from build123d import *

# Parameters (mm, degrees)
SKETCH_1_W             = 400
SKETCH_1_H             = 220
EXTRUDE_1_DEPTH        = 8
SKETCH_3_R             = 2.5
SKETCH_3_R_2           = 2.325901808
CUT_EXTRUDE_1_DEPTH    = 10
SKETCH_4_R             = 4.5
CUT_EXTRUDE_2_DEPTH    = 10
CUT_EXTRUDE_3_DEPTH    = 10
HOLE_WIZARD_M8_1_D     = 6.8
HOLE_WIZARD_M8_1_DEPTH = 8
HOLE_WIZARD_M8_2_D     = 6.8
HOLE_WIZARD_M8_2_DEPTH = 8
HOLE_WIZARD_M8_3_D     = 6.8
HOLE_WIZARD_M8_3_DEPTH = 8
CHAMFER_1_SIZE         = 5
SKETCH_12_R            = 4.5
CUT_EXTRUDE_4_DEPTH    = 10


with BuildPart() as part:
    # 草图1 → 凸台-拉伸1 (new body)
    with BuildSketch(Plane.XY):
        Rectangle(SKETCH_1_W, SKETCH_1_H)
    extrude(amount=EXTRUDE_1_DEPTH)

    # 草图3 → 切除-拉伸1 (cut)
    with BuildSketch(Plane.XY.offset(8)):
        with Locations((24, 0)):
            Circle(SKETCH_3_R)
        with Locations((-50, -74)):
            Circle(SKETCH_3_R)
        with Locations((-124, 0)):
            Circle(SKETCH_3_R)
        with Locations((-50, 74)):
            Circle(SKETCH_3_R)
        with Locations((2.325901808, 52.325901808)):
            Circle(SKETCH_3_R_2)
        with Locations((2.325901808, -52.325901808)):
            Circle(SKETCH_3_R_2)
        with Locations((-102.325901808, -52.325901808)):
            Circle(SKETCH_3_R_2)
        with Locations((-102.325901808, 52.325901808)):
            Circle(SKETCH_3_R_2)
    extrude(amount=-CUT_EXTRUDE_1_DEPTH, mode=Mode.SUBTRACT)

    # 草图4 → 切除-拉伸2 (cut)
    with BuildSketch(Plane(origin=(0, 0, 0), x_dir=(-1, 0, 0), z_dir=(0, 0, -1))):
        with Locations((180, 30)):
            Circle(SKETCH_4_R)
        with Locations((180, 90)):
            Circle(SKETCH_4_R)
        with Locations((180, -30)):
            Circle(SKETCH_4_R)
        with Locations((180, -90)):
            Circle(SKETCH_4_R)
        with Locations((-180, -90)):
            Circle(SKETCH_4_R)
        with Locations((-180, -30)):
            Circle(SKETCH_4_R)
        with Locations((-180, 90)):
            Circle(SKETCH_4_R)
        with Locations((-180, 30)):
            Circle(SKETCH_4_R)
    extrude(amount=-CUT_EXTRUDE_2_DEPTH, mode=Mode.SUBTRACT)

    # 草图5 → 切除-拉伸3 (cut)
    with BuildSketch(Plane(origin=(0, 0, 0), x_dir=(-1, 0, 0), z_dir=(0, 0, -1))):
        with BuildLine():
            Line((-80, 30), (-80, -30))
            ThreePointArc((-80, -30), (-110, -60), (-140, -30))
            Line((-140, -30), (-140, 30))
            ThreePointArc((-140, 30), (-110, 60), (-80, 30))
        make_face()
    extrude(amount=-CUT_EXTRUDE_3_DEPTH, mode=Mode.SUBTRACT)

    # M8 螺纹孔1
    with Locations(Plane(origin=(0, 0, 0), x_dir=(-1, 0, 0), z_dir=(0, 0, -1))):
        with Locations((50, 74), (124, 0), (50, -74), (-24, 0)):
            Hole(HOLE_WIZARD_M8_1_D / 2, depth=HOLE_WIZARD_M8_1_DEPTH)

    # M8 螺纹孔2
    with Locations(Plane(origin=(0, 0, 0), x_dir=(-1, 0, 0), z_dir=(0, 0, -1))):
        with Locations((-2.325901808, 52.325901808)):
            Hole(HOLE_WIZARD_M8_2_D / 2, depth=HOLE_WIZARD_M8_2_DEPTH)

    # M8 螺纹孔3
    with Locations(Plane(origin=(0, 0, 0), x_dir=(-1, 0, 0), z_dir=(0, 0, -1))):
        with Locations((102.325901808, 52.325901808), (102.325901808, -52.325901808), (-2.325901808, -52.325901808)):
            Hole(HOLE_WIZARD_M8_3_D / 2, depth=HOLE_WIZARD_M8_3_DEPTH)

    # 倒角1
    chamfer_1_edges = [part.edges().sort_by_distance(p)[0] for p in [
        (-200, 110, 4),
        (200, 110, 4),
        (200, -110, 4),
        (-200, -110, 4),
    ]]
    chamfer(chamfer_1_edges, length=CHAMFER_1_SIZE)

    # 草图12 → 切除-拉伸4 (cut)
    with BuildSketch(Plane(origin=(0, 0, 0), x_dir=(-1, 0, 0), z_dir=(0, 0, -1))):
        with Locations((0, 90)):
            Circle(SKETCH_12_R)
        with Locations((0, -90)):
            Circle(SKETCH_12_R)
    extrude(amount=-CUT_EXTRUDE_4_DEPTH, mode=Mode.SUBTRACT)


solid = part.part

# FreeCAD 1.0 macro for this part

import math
import FreeCAD as App
import Part
import Sketcher
Q = App.Units.Quantity


def edges_at(feature, points):
    """Names of the edges that pass closest to the given points."""
    edges = feature.Shape.Edges
    near = lambda p: min(range(len(edges)), key=lambda i: edges[i].distToShape(Part.Vertex(*p))[0])
    return sorted({f"Edge{near(p) + 1}" for p in points})

doc = App.newDocument("Part")
body = doc.addObject("PartDesign::Body", "Body")

# Sketch on XY plane
sketch1 = body.newObject("Sketcher::SketchObject", "Sketch")
sketch1.AttachmentSupport = (doc.getObject("XY_Plane"), [""])
sketch1.MapMode = "FlatFace"
sketch1.addGeometry([
    Part.LineSegment(App.Vector(-200, 110, 0), App.Vector(-200, -110, 0)),
    Part.LineSegment(App.Vector(-200, -110, 0), App.Vector(200, -110, 0)),
    Part.LineSegment(App.Vector(200, -110, 0), App.Vector(200, 110, 0)),
    Part.LineSegment(App.Vector(200, 110, 0), App.Vector(-200, 110, 0)),
], False)
sketch1.addConstraint([
    Sketcher.Constraint("Coincident", 0, 2, 1, 1),
    Sketcher.Constraint("Coincident", 1, 2, 2, 1),
    Sketcher.Constraint("Coincident", 2, 2, 3, 1),
    Sketcher.Constraint("Coincident", 3, 2, 0, 1),
    Sketcher.Constraint("Vertical", 0),
    Sketcher.Constraint("Horizontal", 1),
    Sketcher.Constraint("Vertical", 2),
    Sketcher.Constraint("Horizontal", 3),
    Sketcher.Constraint("Symmetric", 0, 2, 2, 2, -1, 1),
    Sketcher.Constraint("DistanceX", 1, 1, 1, 2, Q("400 mm")),
    Sketcher.Constraint("DistanceY", 0, 2, 0, 1, Q("220 mm")),
])
pad1 = body.newObject("PartDesign::Pad", "Pad")
pad1.Profile = sketch1
pad1.Length = 8

# Sketch on XY plane
sketch2 = body.newObject("Sketcher::SketchObject", "Sketch001")
sketch2.AttachmentSupport = (doc.getObject("XY_Plane"), [""])
sketch2.MapMode = "FlatFace"
sketch2.AttachmentOffset = App.Placement(App.Vector(0, 0, 8), App.Rotation())
sketch2.addGeometry([
    Part.Circle(App.Vector(24, 0, 0), App.Vector(0, 0, 1), 2.5),  # 0
    Part.Circle(App.Vector(-50, -74, 0), App.Vector(0, 0, 1), 2.5),  # 1
    Part.Circle(App.Vector(-124, 0, 0), App.Vector(0, 0, 1), 2.5),  # 2
    Part.Circle(App.Vector(-50, 74, 0), App.Vector(0, 0, 1), 2.5),  # 3
    Part.Circle(App.Vector(2.325902, 52.325902, 0), App.Vector(0, 0, 1), 2.325902),  # 4
    Part.Circle(App.Vector(2.325902, -52.325902, 0), App.Vector(0, 0, 1), 2.325902),  # 5
    Part.Circle(App.Vector(-102.325902, -52.325902, 0), App.Vector(0, 0, 1), 2.325902),  # 6
    Part.Circle(App.Vector(-102.325902, 52.325902, 0), App.Vector(0, 0, 1), 2.325902),  # 7
], False)
sketch2.addConstraint([
    Sketcher.Constraint("Equal", 0, 1),
    Sketcher.Constraint("Equal", 1, 2),
    Sketcher.Constraint("Equal", 2, 3),
    Sketcher.Constraint("Equal", 4, 5),
    Sketcher.Constraint("Equal", 5, 6),
    Sketcher.Constraint("Equal", 6, 7),
    Sketcher.Constraint("Symmetric", 1, 3, 3, 3, -1),
    Sketcher.Constraint("Symmetric", 4, 3, 5, 3, -1),
    Sketcher.Constraint("Symmetric", 6, 3, 7, 3, -1),
    Sketcher.Constraint("PointOnObject", 0, 3, -1),
    Sketcher.Constraint("PointOnObject", 2, 3, -1),
    Sketcher.Constraint("Horizontal", 5, 3, 6, 3),
    Sketcher.Constraint("Diameter", 0, Q("5 mm")),
    Sketcher.Constraint("DistanceX", -1, 1, 0, 3, Q("24 mm")),
    Sketcher.Constraint("DistanceX", 1, 3, -1, 1, Q("50 mm")),
    Sketcher.Constraint("DistanceY", 1, 3, -1, 1, Q("74 mm")),
    Sketcher.Constraint("DistanceX", 2, 3, -1, 1, Q("124 mm")),
    Sketcher.Constraint("Diameter", 4, Q("4.651804 mm")),
    Sketcher.Constraint("DistanceX", -1, 1, 4, 3, Q("2.325902 mm")),
    Sketcher.Constraint("DistanceY", -1, 1, 4, 3, Q("52.325902 mm")),
    Sketcher.Constraint("DistanceX", 6, 3, -1, 1, Q("102.325902 mm")),
])
pocket1 = body.newObject("PartDesign::Pocket", "Pocket")
pocket1.Profile = sketch2
pocket1.Length = 10

# Sketch on XY plane
sketch3 = body.newObject("Sketcher::SketchObject", "Sketch002")
sketch3.AttachmentSupport = (doc.getObject("XY_Plane"), [""])
sketch3.MapMode = "FlatFace"
sketch3.addGeometry([
    Part.Circle(App.Vector(-180, 30, 0), App.Vector(0, 0, 1), 4.5),  # 0
    Part.Circle(App.Vector(-180, 90, 0), App.Vector(0, 0, 1), 4.5),  # 1
    Part.Circle(App.Vector(-180, -30, 0), App.Vector(0, 0, 1), 4.5),  # 2
    Part.Circle(App.Vector(-180, -90, 0), App.Vector(0, 0, 1), 4.5),  # 3
    Part.Circle(App.Vector(180, -90, 0), App.Vector(0, 0, 1), 4.5),  # 4
    Part.Circle(App.Vector(180, -30, 0), App.Vector(0, 0, 1), 4.5),  # 5
    Part.Circle(App.Vector(180, 90, 0), App.Vector(0, 0, 1), 4.5),  # 6
    Part.Circle(App.Vector(180, 30, 0), App.Vector(0, 0, 1), 4.5),  # 7
], False)
sketch3.addConstraint([
    Sketcher.Constraint("Equal", 0, 1),
    Sketcher.Constraint("Equal", 1, 2),
    Sketcher.Constraint("Equal", 2, 3),
    Sketcher.Constraint("Equal", 3, 4),
    Sketcher.Constraint("Equal", 4, 5),
    Sketcher.Constraint("Equal", 5, 6),
    Sketcher.Constraint("Equal", 6, 7),
    Sketcher.Constraint("Symmetric", 1, 3, 4, 3, -1, 1),
    Sketcher.Constraint("Symmetric", 0, 3, 5, 3, -1, 1),
    Sketcher.Constraint("Symmetric", 3, 3, 6, 3, -1, 1),
    Sketcher.Constraint("Symmetric", 2, 3, 7, 3, -1, 1),
    Sketcher.Constraint("Symmetric", 3, 3, 4, 3, -2),
    Sketcher.Constraint("Symmetric", 2, 3, 5, 3, -2),
    Sketcher.Constraint("Vertical", 0, 3, 1, 3),
    Sketcher.Constraint("Diameter", 0, Q("9 mm")),
    Sketcher.Constraint("DistanceX", 0, 3, -1, 1, Q("180 mm")),
    Sketcher.Constraint("DistanceY", -1, 1, 0, 3, Q("30 mm")),
    Sketcher.Constraint("DistanceY", -1, 1, 1, 3, Q("90 mm")),
])
pocket2 = body.newObject("PartDesign::Pocket", "Pocket001")
pocket2.Profile = sketch3
pocket2.Length = 10
pocket2.Reversed = True

# Sketch on XY plane
sketch4 = body.newObject("Sketcher::SketchObject", "Sketch003")
sketch4.AttachmentSupport = (doc.getObject("XY_Plane"), [""])
sketch4.MapMode = "FlatFace"
sketch4.addGeometry([
    Part.LineSegment(App.Vector(80, -30, 0), App.Vector(80, 30, 0)),
    Part.ArcOfCircle(Part.Circle(App.Vector(110, 30, 0), App.Vector(0, 0, 1), 30), math.radians(0), math.radians(180)),
    Part.LineSegment(App.Vector(140, 30, 0), App.Vector(140, -30, 0)),
    Part.ArcOfCircle(Part.Circle(App.Vector(110, -30, 0), App.Vector(0, 0, 1), 30), math.radians(180), math.radians(360)),
], False)
sketch4.addConstraint([
    Sketcher.Constraint("Tangent", 0, 2, 1, 2),
    Sketcher.Constraint("Tangent", 1, 1, 2, 1),
    Sketcher.Constraint("Tangent", 2, 2, 3, 2),
    Sketcher.Constraint("Tangent", 3, 1, 0, 1),
    Sketcher.Constraint("Vertical", 0),
    Sketcher.Constraint("Vertical", 2),
    Sketcher.Constraint("Radius", 1, Q("30 mm")),
    Sketcher.Constraint("DistanceY", 0, 1, 0, 2, Q("60 mm")),
    Sketcher.Constraint("DistanceX", -1, 1, 1, 3, Q("110 mm")),
    Sketcher.Constraint("DistanceY", -1, 1, 1, 3, Q("30 mm")),
])
pocket3 = body.newObject("PartDesign::Pocket", "Pocket002")
pocket3.Profile = sketch4
pocket3.Length = 10
pocket3.Reversed = True

# Sketch on XY plane
sketch5 = body.newObject("Sketcher::SketchObject", "Sketch004")
sketch5.AttachmentSupport = (doc.getObject("XY_Plane"), [""])
sketch5.MapMode = "FlatFace"
sketch5.addGeometry([
    Part.Circle(App.Vector(-50, 74, 0), App.Vector(0, 0, 1), 3.4),
    Part.Circle(App.Vector(-124, 0, 0), App.Vector(0, 0, 1), 3.4),
    Part.Circle(App.Vector(-50, -74, 0), App.Vector(0, 0, 1), 3.4),
    Part.Circle(App.Vector(24, 0, 0), App.Vector(0, 0, 1), 3.4),
], False)
sketch5.addConstraint([
    Sketcher.Constraint("Equal", 0, 1),
    Sketcher.Constraint("Equal", 1, 2),
    Sketcher.Constraint("Equal", 2, 3),
    Sketcher.Constraint("Symmetric", 0, 3, 2, 3, -1),
    Sketcher.Constraint("PointOnObject", 1, 3, -1),
    Sketcher.Constraint("PointOnObject", 3, 3, -1),
    Sketcher.Constraint("Diameter", 0, Q("6.8 mm")),
    Sketcher.Constraint("DistanceX", 0, 3, -1, 1, Q("50 mm")),
    Sketcher.Constraint("DistanceY", -1, 1, 0, 3, Q("74 mm")),
    Sketcher.Constraint("DistanceX", 1, 3, -1, 1, Q("124 mm")),
    Sketcher.Constraint("DistanceX", -1, 1, 3, 3, Q("24 mm")),
])
doc.recompute()
hole = body.newObject("PartDesign::Hole", "Hole")
hole.Profile = sketch5
hole.ThreadType = "None"
hole.Diameter = 6.8
hole.DepthType = "Dimension"
hole.Depth = 8
hole.DrillPoint = "Flat"
hole.Reversed = True

# Sketch on XY plane
sketch6 = body.newObject("Sketcher::SketchObject", "Sketch005")
sketch6.AttachmentSupport = (doc.getObject("XY_Plane"), [""])
sketch6.MapMode = "FlatFace"
sketch6.addGeometry(Part.Circle(App.Vector(2.325902, 52.325902, 0), App.Vector(0, 0, 1), 3.4), False)
sketch6.addConstraint([
    Sketcher.Constraint("Diameter", 0, Q("6.8 mm")),
    Sketcher.Constraint("DistanceX", -1, 1, 0, 3, Q("2.325902 mm")),
    Sketcher.Constraint("DistanceY", -1, 1, 0, 3, Q("52.325902 mm")),
])
doc.recompute()
hole2 = body.newObject("PartDesign::Hole", "Hole001")
hole2.Profile = sketch6
hole2.ThreadType = "None"
hole2.Diameter = 6.8
hole2.DepthType = "Dimension"
hole2.Depth = 8
hole2.DrillPoint = "Flat"
hole2.Reversed = True

# Sketch on XY plane
sketch7 = body.newObject("Sketcher::SketchObject", "Sketch006")
sketch7.AttachmentSupport = (doc.getObject("XY_Plane"), [""])
sketch7.MapMode = "FlatFace"
sketch7.addGeometry([
    Part.Circle(App.Vector(-102.325902, 52.325902, 0), App.Vector(0, 0, 1), 3.4),
    Part.Circle(App.Vector(-102.325902, -52.325902, 0), App.Vector(0, 0, 1), 3.4),
    Part.Circle(App.Vector(2.325902, -52.325902, 0), App.Vector(0, 0, 1), 3.4),
], False)
sketch7.addConstraint([
    Sketcher.Constraint("Equal", 0, 1),
    Sketcher.Constraint("Equal", 1, 2),
    Sketcher.Constraint("Symmetric", 0, 3, 1, 3, -1),
    Sketcher.Constraint("Horizontal", 1, 3, 2, 3),
    Sketcher.Constraint("Diameter", 0, Q("6.8 mm")),
    Sketcher.Constraint("DistanceX", 0, 3, -1, 1, Q("102.325902 mm")),
    Sketcher.Constraint("DistanceY", -1, 1, 0, 3, Q("52.325902 mm")),
    Sketcher.Constraint("DistanceX", -1, 1, 2, 3, Q("2.325902 mm")),
])
doc.recompute()
hole3 = body.newObject("PartDesign::Hole", "Hole002")
hole3.Profile = sketch7
hole3.ThreadType = "None"
hole3.Diameter = 6.8
hole3.DepthType = "Dimension"
hole3.Depth = 8
hole3.DrillPoint = "Flat"
hole3.Reversed = True
doc.recompute()

chamfer = body.newObject("PartDesign::Chamfer", "Chamfer")
chamfer.Base = (hole3, edges_at(hole3, [
    (-200, 110, 4),
    (200, 110, 4),
    (200, -110, 4),
    (-200, -110, 4),
]))
chamfer.Size = 5

# Sketch on XY plane
sketch8 = body.newObject("Sketcher::SketchObject", "Sketch007")
sketch8.AttachmentSupport = (doc.getObject("XY_Plane"), [""])
sketch8.MapMode = "FlatFace"
sketch8.addGeometry([
    Part.Circle(App.Vector(0, 90, 0), App.Vector(0, 0, 1), 4.5),
    Part.Circle(App.Vector(0, -90, 0), App.Vector(0, 0, 1), 4.5),
], False)
sketch8.addConstraint([
    Sketcher.Constraint("Equal", 0, 1),
    Sketcher.Constraint("Symmetric", 0, 3, 1, 3, -1, 1),
    Sketcher.Constraint("PointOnObject", 0, 3, -2),
    Sketcher.Constraint("Diameter", 0, Q("9 mm")),
    Sketcher.Constraint("DistanceY", -1, 1, 0, 3, Q("90 mm")),
])
pocket4 = body.newObject("PartDesign::Pocket", "Pocket003")
pocket4.Profile = sketch8
pocket4.Length = 10
pocket4.Reversed = True

doc.recompute()
